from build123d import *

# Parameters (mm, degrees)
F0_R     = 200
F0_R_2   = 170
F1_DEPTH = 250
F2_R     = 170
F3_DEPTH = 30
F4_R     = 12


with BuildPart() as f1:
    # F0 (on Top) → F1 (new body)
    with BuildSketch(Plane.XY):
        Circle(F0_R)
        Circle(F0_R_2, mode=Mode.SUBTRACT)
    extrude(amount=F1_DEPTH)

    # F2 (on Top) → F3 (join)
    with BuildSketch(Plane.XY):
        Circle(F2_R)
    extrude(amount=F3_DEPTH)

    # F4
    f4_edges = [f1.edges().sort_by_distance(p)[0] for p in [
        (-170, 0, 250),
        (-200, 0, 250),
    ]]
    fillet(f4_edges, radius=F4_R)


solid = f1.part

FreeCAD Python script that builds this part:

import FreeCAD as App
import Part
import Sketcher
from FreeCAD import Vector


def edges_at(feature, points):
    """Names of the edges that pass closest to the given points."""
    edges = feature.Shape.Edges
    near = lambda p: min(range(len(edges)), key=lambda i: edges[i].distToShape(Part.Vertex(*p))[0])
    return sorted({f"Edge{near(p) + 1}" for p in points})

doc = App.newDocument("Part")
body = doc.addObject("PartDesign::Body", "Body")

# Sketch on XY plane
sketch1 = doc.addObject("Sketcher::SketchObject", "Sketch")
body.addObject(sketch1)
sketch1.AttachmentSupport = (doc.XY_Plane, [""])
sketch1.MapMode = "FlatFace"
sketch1.addGeometry([
    Part.Circle(Vector(0, 0, 0), Vector(0, 0, 1), 200),
    Part.Circle(Vector(0, 0, 0), Vector(0, 0, 1), 170),
], False)
sketch1.addConstraint([
    Sketcher.Constraint("Coincident", 0, 3, -1, 1),
    Sketcher.Constraint("Coincident", 1, 3, -1, 1),
    Sketcher.Constraint("Diameter", 0, 400.0),
    Sketcher.Constraint("Diameter", 1, 340.0),
])
pad1 = doc.addObject("PartDesign::Pad", "Pad")
body.addObject(pad1)
pad1.Profile = sketch1
pad1.Length = 250

# Sketch on XY plane
sketch2 = doc.addObject("Sketcher::SketchObject", "Sketch001")
body.addObject(sketch2)
sketch2.AttachmentSupport = (doc.XY_Plane, [""])
sketch2.MapMode = "FlatFace"
sketch2.addGeometry(Part.Circle(Vector(0, 0, 0), Vector(0, 0, 1), 170), False)
sketch2.addConstraint([
    Sketcher.Constraint("Coincident", 0, 3, -1, 1),
    Sketcher.Constraint("Diameter", 0, 340.0),
])
pad2 = doc.addObject("PartDesign::Pad", "Pad001")
body.addObject(pad2)
pad2.Profile = sketch2
pad2.Length = 30
doc.recompute()

fillet = doc.addObject("PartDesign::Fillet", "Fillet")
body.addObject(fillet)
fillet.Base = (pad2, edges_at(pad2, [(-170, 0, 250), (-200, 0, 250)]))
fillet.Radius = 12

doc.recompute()
